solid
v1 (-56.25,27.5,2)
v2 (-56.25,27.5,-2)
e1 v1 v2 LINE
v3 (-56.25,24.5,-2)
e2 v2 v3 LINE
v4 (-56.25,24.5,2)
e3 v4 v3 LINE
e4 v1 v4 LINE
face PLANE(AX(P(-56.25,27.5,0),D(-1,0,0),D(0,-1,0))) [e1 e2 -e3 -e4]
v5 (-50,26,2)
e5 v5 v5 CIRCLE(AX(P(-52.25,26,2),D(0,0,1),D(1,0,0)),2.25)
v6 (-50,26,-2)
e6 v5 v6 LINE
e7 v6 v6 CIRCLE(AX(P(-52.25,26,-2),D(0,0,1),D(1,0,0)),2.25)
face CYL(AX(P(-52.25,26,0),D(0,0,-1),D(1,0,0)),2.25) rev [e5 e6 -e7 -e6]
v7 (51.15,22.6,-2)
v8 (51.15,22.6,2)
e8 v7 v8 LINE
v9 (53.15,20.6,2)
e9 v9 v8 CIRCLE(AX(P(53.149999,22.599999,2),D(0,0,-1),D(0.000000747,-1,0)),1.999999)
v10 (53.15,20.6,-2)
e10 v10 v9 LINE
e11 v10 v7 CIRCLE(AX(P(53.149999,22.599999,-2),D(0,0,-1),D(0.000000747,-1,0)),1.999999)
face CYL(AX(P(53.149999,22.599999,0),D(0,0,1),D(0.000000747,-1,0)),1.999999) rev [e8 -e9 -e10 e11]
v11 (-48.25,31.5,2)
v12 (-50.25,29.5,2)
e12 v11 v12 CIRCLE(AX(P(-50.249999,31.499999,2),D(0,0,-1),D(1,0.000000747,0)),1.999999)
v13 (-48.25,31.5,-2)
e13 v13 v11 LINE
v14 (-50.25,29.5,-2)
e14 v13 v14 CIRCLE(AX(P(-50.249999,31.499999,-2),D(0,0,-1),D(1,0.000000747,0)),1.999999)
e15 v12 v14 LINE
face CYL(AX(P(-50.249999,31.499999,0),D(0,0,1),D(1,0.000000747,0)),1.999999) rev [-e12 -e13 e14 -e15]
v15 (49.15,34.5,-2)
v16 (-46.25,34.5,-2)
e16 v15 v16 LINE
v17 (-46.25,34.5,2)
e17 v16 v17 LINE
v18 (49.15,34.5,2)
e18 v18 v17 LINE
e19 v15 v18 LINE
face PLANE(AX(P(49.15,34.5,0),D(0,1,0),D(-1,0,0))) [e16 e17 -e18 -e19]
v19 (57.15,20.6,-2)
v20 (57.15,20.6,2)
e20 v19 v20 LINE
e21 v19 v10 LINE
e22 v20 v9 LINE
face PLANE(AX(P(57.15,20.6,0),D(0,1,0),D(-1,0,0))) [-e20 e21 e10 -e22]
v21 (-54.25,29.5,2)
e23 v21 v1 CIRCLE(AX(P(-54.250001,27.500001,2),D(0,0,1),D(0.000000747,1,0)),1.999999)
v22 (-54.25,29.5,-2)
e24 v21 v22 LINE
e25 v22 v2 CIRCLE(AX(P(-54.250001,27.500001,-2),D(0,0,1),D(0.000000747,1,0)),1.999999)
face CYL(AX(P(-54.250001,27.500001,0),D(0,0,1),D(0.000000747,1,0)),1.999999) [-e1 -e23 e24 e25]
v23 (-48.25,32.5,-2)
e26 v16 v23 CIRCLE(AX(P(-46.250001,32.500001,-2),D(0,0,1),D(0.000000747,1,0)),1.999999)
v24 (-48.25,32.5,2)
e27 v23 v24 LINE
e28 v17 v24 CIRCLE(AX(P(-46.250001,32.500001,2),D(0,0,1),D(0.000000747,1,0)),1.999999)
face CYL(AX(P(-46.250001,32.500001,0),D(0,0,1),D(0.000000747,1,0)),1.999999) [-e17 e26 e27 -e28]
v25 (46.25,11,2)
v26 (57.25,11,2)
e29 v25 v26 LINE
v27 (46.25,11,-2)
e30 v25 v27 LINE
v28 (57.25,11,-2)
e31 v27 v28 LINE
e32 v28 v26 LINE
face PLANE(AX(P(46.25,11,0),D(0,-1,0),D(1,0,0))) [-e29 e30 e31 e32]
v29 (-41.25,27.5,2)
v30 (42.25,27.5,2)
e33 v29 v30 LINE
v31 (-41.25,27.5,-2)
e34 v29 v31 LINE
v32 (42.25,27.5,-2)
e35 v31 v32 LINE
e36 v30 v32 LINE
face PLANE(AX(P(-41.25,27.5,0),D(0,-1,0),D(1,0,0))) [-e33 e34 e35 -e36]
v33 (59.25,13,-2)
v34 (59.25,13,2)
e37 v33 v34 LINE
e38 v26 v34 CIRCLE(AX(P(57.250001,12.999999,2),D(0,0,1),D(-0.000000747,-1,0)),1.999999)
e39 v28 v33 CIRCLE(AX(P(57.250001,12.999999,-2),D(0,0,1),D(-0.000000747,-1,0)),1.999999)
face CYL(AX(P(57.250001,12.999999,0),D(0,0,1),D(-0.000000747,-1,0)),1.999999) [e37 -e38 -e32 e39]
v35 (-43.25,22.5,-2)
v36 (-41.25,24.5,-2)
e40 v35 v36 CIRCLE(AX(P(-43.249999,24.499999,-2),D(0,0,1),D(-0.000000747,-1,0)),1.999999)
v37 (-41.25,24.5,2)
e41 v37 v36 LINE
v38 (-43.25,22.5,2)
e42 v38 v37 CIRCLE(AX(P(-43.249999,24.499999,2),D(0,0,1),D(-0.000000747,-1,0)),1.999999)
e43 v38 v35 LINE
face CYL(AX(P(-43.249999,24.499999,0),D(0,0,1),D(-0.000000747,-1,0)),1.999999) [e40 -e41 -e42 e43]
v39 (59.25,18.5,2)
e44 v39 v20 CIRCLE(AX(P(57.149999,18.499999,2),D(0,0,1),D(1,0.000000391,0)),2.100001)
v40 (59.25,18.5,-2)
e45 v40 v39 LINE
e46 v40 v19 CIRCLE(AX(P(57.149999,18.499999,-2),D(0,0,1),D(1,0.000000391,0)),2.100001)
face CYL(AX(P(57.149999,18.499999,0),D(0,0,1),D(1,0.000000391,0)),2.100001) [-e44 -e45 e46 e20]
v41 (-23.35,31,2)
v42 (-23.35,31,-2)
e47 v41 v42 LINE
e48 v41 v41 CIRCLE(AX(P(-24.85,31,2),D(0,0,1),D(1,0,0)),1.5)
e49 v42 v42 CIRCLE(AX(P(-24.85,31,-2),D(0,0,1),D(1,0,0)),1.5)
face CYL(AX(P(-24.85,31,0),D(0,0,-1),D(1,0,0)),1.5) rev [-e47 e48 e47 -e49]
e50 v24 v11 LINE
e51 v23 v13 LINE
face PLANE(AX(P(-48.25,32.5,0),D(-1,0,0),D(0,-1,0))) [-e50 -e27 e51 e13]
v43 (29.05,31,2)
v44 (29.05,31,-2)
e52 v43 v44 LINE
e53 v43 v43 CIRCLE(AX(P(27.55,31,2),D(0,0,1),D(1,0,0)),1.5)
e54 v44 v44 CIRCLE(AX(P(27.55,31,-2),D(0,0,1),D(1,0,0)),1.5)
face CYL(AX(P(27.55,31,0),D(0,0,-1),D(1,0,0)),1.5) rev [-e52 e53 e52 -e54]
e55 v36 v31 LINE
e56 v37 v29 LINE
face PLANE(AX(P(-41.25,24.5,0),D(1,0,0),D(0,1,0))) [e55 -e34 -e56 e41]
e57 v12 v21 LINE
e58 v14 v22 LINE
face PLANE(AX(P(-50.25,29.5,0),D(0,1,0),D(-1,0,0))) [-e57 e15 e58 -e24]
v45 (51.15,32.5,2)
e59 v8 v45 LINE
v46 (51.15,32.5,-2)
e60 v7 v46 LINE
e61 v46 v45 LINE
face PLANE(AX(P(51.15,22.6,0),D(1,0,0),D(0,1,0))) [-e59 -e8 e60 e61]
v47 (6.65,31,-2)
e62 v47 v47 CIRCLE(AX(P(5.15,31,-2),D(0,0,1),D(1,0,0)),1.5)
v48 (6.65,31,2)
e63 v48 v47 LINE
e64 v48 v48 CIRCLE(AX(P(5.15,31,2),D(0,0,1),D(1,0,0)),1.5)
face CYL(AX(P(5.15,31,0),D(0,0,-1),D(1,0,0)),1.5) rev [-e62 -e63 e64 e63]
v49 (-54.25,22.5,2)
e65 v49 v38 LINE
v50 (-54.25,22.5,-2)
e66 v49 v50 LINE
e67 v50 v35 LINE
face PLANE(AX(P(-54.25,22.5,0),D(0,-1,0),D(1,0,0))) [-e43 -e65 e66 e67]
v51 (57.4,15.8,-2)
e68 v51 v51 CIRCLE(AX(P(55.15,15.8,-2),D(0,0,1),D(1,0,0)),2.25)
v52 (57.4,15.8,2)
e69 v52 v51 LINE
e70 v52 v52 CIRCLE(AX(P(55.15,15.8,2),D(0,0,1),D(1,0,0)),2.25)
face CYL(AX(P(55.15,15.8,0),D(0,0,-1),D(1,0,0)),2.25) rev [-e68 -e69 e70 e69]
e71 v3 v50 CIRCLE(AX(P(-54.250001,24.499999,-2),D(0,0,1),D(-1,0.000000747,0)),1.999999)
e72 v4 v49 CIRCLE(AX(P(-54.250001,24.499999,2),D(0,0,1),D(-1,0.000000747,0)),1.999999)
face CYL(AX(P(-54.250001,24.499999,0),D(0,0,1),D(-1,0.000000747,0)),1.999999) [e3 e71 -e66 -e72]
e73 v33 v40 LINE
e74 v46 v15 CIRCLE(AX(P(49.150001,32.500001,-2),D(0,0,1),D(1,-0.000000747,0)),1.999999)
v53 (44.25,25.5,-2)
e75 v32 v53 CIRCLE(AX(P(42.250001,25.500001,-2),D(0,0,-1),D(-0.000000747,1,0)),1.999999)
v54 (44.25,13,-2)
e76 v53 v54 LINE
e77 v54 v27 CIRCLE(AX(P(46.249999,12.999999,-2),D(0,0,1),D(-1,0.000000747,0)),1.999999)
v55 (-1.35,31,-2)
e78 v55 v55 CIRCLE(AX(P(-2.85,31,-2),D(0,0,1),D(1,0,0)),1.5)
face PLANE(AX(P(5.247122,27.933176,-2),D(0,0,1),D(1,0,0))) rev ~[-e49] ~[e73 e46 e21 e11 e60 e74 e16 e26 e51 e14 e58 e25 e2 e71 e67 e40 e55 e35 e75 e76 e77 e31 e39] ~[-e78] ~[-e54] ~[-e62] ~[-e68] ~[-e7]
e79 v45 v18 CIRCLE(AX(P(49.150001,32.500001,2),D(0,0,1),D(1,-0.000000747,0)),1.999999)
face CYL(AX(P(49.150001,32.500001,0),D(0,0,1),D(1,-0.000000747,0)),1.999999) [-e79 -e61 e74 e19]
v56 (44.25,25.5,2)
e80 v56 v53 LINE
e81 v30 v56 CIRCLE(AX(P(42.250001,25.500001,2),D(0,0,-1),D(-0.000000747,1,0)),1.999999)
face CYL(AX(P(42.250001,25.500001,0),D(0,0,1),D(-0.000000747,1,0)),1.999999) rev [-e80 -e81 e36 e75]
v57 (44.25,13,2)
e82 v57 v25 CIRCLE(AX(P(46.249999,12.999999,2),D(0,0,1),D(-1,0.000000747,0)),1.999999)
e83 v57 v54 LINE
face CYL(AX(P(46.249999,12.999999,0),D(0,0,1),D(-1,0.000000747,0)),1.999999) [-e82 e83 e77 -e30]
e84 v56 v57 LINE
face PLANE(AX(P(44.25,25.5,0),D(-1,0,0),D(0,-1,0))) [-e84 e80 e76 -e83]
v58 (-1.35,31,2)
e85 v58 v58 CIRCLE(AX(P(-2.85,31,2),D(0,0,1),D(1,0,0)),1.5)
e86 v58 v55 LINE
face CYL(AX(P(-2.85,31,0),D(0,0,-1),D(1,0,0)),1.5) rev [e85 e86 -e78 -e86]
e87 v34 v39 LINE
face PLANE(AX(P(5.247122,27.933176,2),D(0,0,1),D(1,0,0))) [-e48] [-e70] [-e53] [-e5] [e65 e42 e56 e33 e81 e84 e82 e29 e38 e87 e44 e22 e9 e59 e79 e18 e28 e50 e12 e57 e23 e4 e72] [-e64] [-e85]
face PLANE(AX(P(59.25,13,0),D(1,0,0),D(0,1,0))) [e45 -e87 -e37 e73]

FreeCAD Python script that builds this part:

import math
import FreeCAD as App
import Part
import Sketcher

doc = App.newDocument("Part")
body = doc.addObject("PartDesign::Body", "Body")

# Sketch on XY plane
sketch1 = body.newObject("Sketcher::SketchObject", "Sketch")
sketch1.AttachmentSupport = (doc.getObject("XY_Plane"), [""])
sketch1.MapMode = "FlatFace"
sketch1.addGeometry(Part.LineSegment(App.Vector(46.25, 11, 0), App.Vector(57.25, 11, 0)), False)
sketch1.addGeometry(Part.ArcOfCircle(Part.Circle(App.Vector(57.250001, 12.999999, 0), App.Vector(0, 0, 1), 1.999999), math.radians(-90.000043), math.radians(0.000043)), False)
sketch1.addGeometry(Part.LineSegment(App.Vector(59.25, 13, 0), App.Vector(59.25, 18.5, 0)), False)
sketch1.addGeometry(Part.ArcOfCircle(Part.Circle(App.Vector(57.149999, 18.499999, 0), App.Vector(0, 0, 1), 2.100001), math.radians(0.000022), math.radians(89.999978)), False)
sketch1.addGeometry(Part.LineSegment(App.Vector(57.15, 20.6, 0), App.Vector(53.15, 20.6, 0)), False)
sketch1.addGeometry(Part.ArcOfCircle(Part.Circle(App.Vector(53.149999, 22.599999, 0), App.Vector(0, 0, 1), 1.999999), math.radians(179.999957), math.radians(270.000043)), False)
sketch1.addGeometry(Part.LineSegment(App.Vector(51.15, 22.6, 0), App.Vector(51.15, 32.5, 0)), False)
sketch1.addGeometry(Part.ArcOfCircle(Part.Circle(App.Vector(49.150001, 32.500001, 0), App.Vector(0, 0, 1), 1.999999), math.radians(-0.000043), math.radians(90.000043)), False)
sketch1.addGeometry(Part.LineSegment(App.Vector(49.15, 34.5, 0), App.Vector(-46.25, 34.5, 0)), False)
sketch1.addGeometry(Part.ArcOfCircle(Part.Circle(App.Vector(-46.250001, 32.500001, 0), App.Vector(0, 0, 1), 1.999999), math.radians(89.999957), math.radians(180.000043)), False)
sketch1.addGeometry(Part.LineSegment(App.Vector(-48.25, 32.5, 0), App.Vector(-48.25, 31.5, 0)), False)
sketch1.addGeometry(Part.ArcOfCircle(Part.Circle(App.Vector(-50.249999, 31.499999, 0), App.Vector(0, 0, 1), 1.999999), math.radians(-90.000043), math.radians(0.000043)), False)
sketch1.addGeometry(Part.LineSegment(App.Vector(-50.25, 29.5, 0), App.Vector(-54.25, 29.5, 0)), False)
sketch1.addGeometry(Part.ArcOfCircle(Part.Circle(App.Vector(-54.250001, 27.500001, 0), App.Vector(0, 0, 1), 1.999999), math.radians(89.999957), math.radians(180.000043)), False)
sketch1.addGeometry(Part.LineSegment(App.Vector(-56.25, 27.5, 0), App.Vector(-56.25, 24.5, 0)), False)
sketch1.addGeometry(Part.ArcOfCircle(Part.Circle(App.Vector(-54.250001, 24.499999, 0), App.Vector(0, 0, 1), 1.999999), math.radians(179.999957), math.radians(270.000043)), False)
sketch1.addGeometry(Part.LineSegment(App.Vector(-54.25, 22.5, 0), App.Vector(-43.25, 22.5, 0)), False)
sketch1.addGeometry(Part.ArcOfCircle(Part.Circle(App.Vector(-43.249999, 24.499999, 0), App.Vector(0, 0, 1), 1.999999), math.radians(-90.000043), math.radians(0.000043)), False)
sketch1.addGeometry(Part.LineSegment(App.Vector(-41.25, 24.5, 0), App.Vector(-41.25, 27.5, 0)), False)
sketch1.addGeometry(Part.LineSegment(App.Vector(-41.25, 27.5, 0), App.Vector(42.25, 27.5, 0)), False)
sketch1.addGeometry(Part.ArcOfCircle(Part.Circle(App.Vector(42.250001, 25.500001, 0), App.Vector(0, 0, 1), 1.999999), math.radians(-0.000043), math.radians(90.000043)), False)
sketch1.addGeometry(Part.LineSegment(App.Vector(44.25, 25.5, 0), App.Vector(44.25, 13, 0)), False)
sketch1.addGeometry(Part.ArcOfCircle(Part.Circle(App.Vector(46.249999, 12.999999, 0), App.Vector(0, 0, 1), 1.999999), math.radians(179.999957), math.radians(270.000043)), False)
sketch1.addGeometry(Part.Circle(App.Vector(55.15, 15.8, 0), App.Vector(0, 0, 1), 2.25), False)
sketch1.addGeometry(Part.Circle(App.Vector(-52.25, 26, 0), App.Vector(0, 0, 1), 2.25), False)
sketch1.addGeometry(Part.Circle(App.Vector(-24.85, 31, 0), App.Vector(0, 0, 1), 1.5), False)
sketch1.addGeometry(Part.Circle(App.Vector(-2.85, 31, 0), App.Vector(0, 0, 1), 1.5), False)
sketch1.addGeometry(Part.Circle(App.Vector(5.15, 31, 0), App.Vector(0, 0, 1), 1.5), False)
sketch1.addGeometry(Part.Circle(App.Vector(27.55, 31, 0), App.Vector(0, 0, 1), 1.5), False)
sketch1.addConstraint(Sketcher.Constraint("Tangent", 0, 2, 1, 1))
sketch1.addConstraint(Sketcher.Constraint("Tangent", 1, 2, 2, 1))
sketch1.addConstraint(Sketcher.Constraint("Tangent", 2, 2, 3, 1))
sketch1.addConstraint(Sketcher.Constraint("Tangent", 3, 2, 4, 1))
sketch1.addConstraint(Sketcher.Constraint("Tangent", 4, 2, 5, 2))
sketch1.addConstraint(Sketcher.Constraint("Tangent", 5, 1, 6, 1))
sketch1.addConstraint(Sketcher.Constraint("Tangent", 6, 2, 7, 1))
sketch1.addConstraint(Sketcher.Constraint("Tangent", 7, 2, 8, 1))
sketch1.addConstraint(Sketcher.Constraint("Tangent", 8, 2, 9, 1))
sketch1.addConstraint(Sketcher.Constraint("Tangent", 9, 2, 10, 1))
sketch1.addConstraint(Sketcher.Constraint("Tangent", 10, 2, 11, 2))
sketch1.addConstraint(Sketcher.Constraint("Tangent", 11, 1, 12, 1))
sketch1.addConstraint(Sketcher.Constraint("Tangent", 12, 2, 13, 1))
sketch1.addConstraint(Sketcher.Constraint("Tangent", 13, 2, 14, 1))
sketch1.addConstraint(Sketcher.Constraint("Tangent", 14, 2, 15, 1))
sketch1.addConstraint(Sketcher.Constraint("Tangent", 15, 2, 16, 1))
sketch1.addConstraint(Sketcher.Constraint("Tangent", 16, 2, 17, 1))
sketch1.addConstraint(Sketcher.Constraint("Tangent", 17, 2, 18, 1))
sketch1.addConstraint(Sketcher.Constraint("Coincident", 18, 2, 19, 1))
sketch1.addConstraint(Sketcher.Constraint("Tangent", 19, 2, 20, 2))
sketch1.addConstraint(Sketcher.Constraint("Tangent", 20, 1, 21, 1))
sketch1.addConstraint(Sketcher.Constraint("Tangent", 21, 2, 22, 1))
sketch1.addConstraint(Sketcher.Constraint("Tangent", 22, 2, 0, 1))
sketch1.addConstraint(Sketcher.Constraint("Horizontal", 0))
sketch1.addConstraint(Sketcher.Constraint("Vertical", 2))
sketch1.addConstraint(Sketcher.Constraint("Horizontal", 4))
sketch1.addConstraint(Sketcher.Constraint("Vertical", 6))
sketch1.addConstraint(Sketcher.Constraint("Horizontal", 8))
sketch1.addConstraint(Sketcher.Constraint("Vertical", 10))
sketch1.addConstraint(Sketcher.Constraint("Horizontal", 12))
sketch1.addConstraint(Sketcher.Constraint("Vertical", 14))
sketch1.addConstraint(Sketcher.Constraint("Horizontal", 16))
sketch1.addConstraint(Sketcher.Constraint("Vertical", 18))
sketch1.addConstraint(Sketcher.Constraint("Horizontal", 19))
sketch1.addConstraint(Sketcher.Constraint("Vertical", 21))
sketch1.addConstraint(Sketcher.Constraint("Equal", 1, 5))
sketch1.addConstraint(Sketcher.Constraint("Equal", 5, 7))
sketch1.addConstraint(Sketcher.Constraint("Equal", 7, 9))
sketch1.addConstraint(Sketcher.Constraint("Equal", 9, 11))
sketch1.addConstraint(Sketcher.Constraint("Equal", 11, 13))
sketch1.addConstraint(Sketcher.Constraint("Equal", 13, 15))
sketch1.addConstraint(Sketcher.Constraint("Equal", 15, 17))
sketch1.addConstraint(Sketcher.Constraint("Equal", 17, 20))
sketch1.addConstraint(Sketcher.Constraint("Equal", 20, 22))
sketch1.addConstraint(Sketcher.Constraint("Equal", 23, 24))
sketch1.addConstraint(Sketcher.Constraint("Equal", 25, 26))
sketch1.addConstraint(Sketcher.Constraint("Equal", 26, 27))
sketch1.addConstraint(Sketcher.Constraint("Equal", 27, 28))
sketch1.addConstraint(Sketcher.Constraint("Horizontal", 25, 3, 26, 3))
sketch1.addConstraint(Sketcher.Constraint("Horizontal", 26, 3, 27, 3))
sketch1.addConstraint(Sketcher.Constraint("Horizontal", 27, 3, 28, 3))
sketch1.addConstraint(Sketcher.Constraint("Horizontal", 13, 2, 18, 2))
sketch1.addConstraint(Sketcher.Constraint("Equal", 4, 12))
sketch1.addConstraint(Sketcher.Constraint("Equal", 0, 16))
sketch1.addConstraint(Sketcher.Constraint("Diameter", 25, 3.0))
sketch1.addConstraint(Sketcher.Constraint("Radius", 1, 1.999999))
sketch1.addConstraint(Sketcher.Constraint("Diameter", 23, 4.5))
sketch1.addConstraint(Sketcher.Constraint("Radius", 3, 2.100001))
sketch1.addConstraint(Sketcher.Constraint("DistanceX", 0, 1, 0, 2, 11.0))
sketch1.addConstraint(Sketcher.Constraint("DistanceX", 4, 2, 4, 1, 4.0))
sketch1.addConstraint(Sketcher.Constraint("DistanceY", 10, 2, 10, 1, 1.0))
sketch1.addConstraint(Sketcher.Constraint("DistanceY", 14, 2, 14, 1, 3.0))
sketch1.addConstraint(Sketcher.Constraint("DistanceX", 8, 2, 8, 1, 95.4))
sketch1.addConstraint(Sketcher.Constraint("DistanceY", 2, 1, 2, 2, 5.5))
sketch1.addConstraint(Sketcher.Constraint("DistanceY", 6, 1, 6, 2, 9.9))
sketch1.addConstraint(Sketcher.Constraint("DistanceY", -1, 1, 1, 3, 12.999999))
sketch1.addConstraint(Sketcher.Constraint("DistanceY", -1, 1, 24, 3, 26.0))
sketch1.addConstraint(Sketcher.Constraint("DistanceY", -1, 1, 25, 3, 31.0))
sketch1.addConstraint(Sketcher.Constraint("DistanceX", 23, 3, 3, 3, 1.999999))
sketch1.addConstraint(Sketcher.Constraint("DistanceX", 13, 3, 24, 3, 2.000001))
sketch1.addConstraint(Sketcher.Constraint("DistanceX", 25, 3, 26, 3, 22.0))
sketch1.addConstraint(Sketcher.Constraint("DistanceX", 26, 3, 27, 3, 8.0))
sketch1.addConstraint(Sketcher.Constraint("DistanceX", 27, 3, 7, 3, 44.000001))
sketch1.addConstraint(Sketcher.Constraint("DistanceY", -1, 1, 23, 3, 15.8))
sketch1.addConstraint(Sketcher.Constraint("DistanceX", 28, 3, 20, 3, 14.700001))
sketch1.addConstraint(Sketcher.Constraint("DistanceX", -1, 1, 1, 3, 57.250001))
pad1 = body.newObject("PartDesign::Pad", "Pad")
pad1.Profile = sketch1
pad1.Length = 4
pad1.Midplane = True

doc.recompute()
